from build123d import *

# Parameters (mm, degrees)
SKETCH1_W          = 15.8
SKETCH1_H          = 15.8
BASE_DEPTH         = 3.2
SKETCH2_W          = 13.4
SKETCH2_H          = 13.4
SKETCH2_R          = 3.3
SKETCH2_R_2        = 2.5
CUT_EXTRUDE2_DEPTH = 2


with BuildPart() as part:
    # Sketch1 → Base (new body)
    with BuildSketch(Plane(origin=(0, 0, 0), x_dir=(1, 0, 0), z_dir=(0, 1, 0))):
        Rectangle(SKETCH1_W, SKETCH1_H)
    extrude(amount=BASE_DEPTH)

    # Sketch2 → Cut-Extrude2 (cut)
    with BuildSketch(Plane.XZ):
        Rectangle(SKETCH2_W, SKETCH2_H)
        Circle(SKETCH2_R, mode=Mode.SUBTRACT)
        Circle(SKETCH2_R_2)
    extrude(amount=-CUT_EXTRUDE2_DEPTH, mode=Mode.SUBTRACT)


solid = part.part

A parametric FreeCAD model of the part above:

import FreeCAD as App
import Part
import Sketcher

V = App.Vector
Q = App.Units.Quantity

doc = App.newDocument("Part")
body = doc.addObject("PartDesign::Body", "Body")

# Sketch on XZ plane
sketch1 = body.newObject("Sketcher::SketchObject", "Sketch")
sketch1.AttachmentSupport = (doc.getObject("XZ_Plane"), [""])
sketch1.MapMode = "FlatFace"
sketch1.addGeometry([
    Part.LineSegment(V(-7.9, -7.9, 0), V(-7.9, 7.9, 0)),
    Part.LineSegment(V(-7.9, 7.9, 0), V(7.9, 7.9, 0)),
    Part.LineSegment(V(7.9, 7.9, 0), V(7.9, -7.9, 0)),
    Part.LineSegment(V(7.9, -7.9, 0), V(-7.9, -7.9, 0)),
], False)
sketch1.addConstraint([
    Sketcher.Constraint("Coincident", 0, 2, 1, 1),
    Sketcher.Constraint("Coincident", 1, 2, 2, 1),
    Sketcher.Constraint("Coincident", 2, 2, 3, 1),
    Sketcher.Constraint("Coincident", 3, 2, 0, 1),
    Sketcher.Constraint("Vertical", 0),
    Sketcher.Constraint("Horizontal", 1),
    Sketcher.Constraint("Vertical", 2),
    Sketcher.Constraint("Horizontal", 3),
    Sketcher.Constraint("Symmetric", 0, 2, 2, 2, -1, 1),
    Sketcher.Constraint("Equal", 3, 0),
    Sketcher.Constraint("DistanceX", 1, 1, 1, 2, Q("15.8 mm")),
])
pad1 = body.newObject("PartDesign::Pad", "Pad")
pad1.Profile = sketch1
pad1.Length = 3.2
pad1.Reversed = True

# Sketch on XZ plane
sketch2 = body.newObject("Sketcher::SketchObject", "Sketch001")
sketch2.AttachmentSupport = (doc.getObject("XZ_Plane"), [""])
sketch2.MapMode = "FlatFace"
sketch2.addGeometry([
    Part.LineSegment(V(-6.7, 6.7, 0), V(-6.7, -6.7, 0)),  # 0
    Part.LineSegment(V(-6.7, -6.7, 0), V(6.7, -6.7, 0)),  # 1
    Part.LineSegment(V(6.7, -6.7, 0), V(6.7, 6.7, 0)),  # 2
    Part.LineSegment(V(6.7, 6.7, 0), V(-6.7, 6.7, 0)),  # 3
    Part.Circle(V(0, 0, 0), V(0, 0, 1), 3.3),  # 4
    Part.Circle(V(0, 0, 0), V(0, 0, 1), 2.5),  # 5
], False)
sketch2.addConstraint([
    Sketcher.Constraint("Coincident", 0, 2, 1, 1),
    Sketcher.Constraint("Coincident", 1, 2, 2, 1),
    Sketcher.Constraint("Coincident", 2, 2, 3, 1),
    Sketcher.Constraint("Coincident", 3, 2, 0, 1),
    Sketcher.Constraint("Vertical", 0),
    Sketcher.Constraint("Horizontal", 1),
    Sketcher.Constraint("Vertical", 2),
    Sketcher.Constraint("Horizontal", 3),
    Sketcher.Constraint("Coincident", 4, 3, -1, 1),
    Sketcher.Constraint("Coincident", 5, 3, -1, 1),
    Sketcher.Constraint("Symmetric", 0, 2, 2, 2, -1, 1),
    Sketcher.Constraint("Equal", 3, 0),
    Sketcher.Constraint("Diameter", 5, Q("5 mm")),
    Sketcher.Constraint("Diameter", 4, Q("6.6 mm")),
    Sketcher.Constraint("DistanceX", 1, 1, 1, 2, Q("13.4 mm")),
])
pocket1 = body.newObject("PartDesign::Pocket", "Pocket")
pocket1.Profile = sketch2
pocket1.Length = 2

doc.recompute()
